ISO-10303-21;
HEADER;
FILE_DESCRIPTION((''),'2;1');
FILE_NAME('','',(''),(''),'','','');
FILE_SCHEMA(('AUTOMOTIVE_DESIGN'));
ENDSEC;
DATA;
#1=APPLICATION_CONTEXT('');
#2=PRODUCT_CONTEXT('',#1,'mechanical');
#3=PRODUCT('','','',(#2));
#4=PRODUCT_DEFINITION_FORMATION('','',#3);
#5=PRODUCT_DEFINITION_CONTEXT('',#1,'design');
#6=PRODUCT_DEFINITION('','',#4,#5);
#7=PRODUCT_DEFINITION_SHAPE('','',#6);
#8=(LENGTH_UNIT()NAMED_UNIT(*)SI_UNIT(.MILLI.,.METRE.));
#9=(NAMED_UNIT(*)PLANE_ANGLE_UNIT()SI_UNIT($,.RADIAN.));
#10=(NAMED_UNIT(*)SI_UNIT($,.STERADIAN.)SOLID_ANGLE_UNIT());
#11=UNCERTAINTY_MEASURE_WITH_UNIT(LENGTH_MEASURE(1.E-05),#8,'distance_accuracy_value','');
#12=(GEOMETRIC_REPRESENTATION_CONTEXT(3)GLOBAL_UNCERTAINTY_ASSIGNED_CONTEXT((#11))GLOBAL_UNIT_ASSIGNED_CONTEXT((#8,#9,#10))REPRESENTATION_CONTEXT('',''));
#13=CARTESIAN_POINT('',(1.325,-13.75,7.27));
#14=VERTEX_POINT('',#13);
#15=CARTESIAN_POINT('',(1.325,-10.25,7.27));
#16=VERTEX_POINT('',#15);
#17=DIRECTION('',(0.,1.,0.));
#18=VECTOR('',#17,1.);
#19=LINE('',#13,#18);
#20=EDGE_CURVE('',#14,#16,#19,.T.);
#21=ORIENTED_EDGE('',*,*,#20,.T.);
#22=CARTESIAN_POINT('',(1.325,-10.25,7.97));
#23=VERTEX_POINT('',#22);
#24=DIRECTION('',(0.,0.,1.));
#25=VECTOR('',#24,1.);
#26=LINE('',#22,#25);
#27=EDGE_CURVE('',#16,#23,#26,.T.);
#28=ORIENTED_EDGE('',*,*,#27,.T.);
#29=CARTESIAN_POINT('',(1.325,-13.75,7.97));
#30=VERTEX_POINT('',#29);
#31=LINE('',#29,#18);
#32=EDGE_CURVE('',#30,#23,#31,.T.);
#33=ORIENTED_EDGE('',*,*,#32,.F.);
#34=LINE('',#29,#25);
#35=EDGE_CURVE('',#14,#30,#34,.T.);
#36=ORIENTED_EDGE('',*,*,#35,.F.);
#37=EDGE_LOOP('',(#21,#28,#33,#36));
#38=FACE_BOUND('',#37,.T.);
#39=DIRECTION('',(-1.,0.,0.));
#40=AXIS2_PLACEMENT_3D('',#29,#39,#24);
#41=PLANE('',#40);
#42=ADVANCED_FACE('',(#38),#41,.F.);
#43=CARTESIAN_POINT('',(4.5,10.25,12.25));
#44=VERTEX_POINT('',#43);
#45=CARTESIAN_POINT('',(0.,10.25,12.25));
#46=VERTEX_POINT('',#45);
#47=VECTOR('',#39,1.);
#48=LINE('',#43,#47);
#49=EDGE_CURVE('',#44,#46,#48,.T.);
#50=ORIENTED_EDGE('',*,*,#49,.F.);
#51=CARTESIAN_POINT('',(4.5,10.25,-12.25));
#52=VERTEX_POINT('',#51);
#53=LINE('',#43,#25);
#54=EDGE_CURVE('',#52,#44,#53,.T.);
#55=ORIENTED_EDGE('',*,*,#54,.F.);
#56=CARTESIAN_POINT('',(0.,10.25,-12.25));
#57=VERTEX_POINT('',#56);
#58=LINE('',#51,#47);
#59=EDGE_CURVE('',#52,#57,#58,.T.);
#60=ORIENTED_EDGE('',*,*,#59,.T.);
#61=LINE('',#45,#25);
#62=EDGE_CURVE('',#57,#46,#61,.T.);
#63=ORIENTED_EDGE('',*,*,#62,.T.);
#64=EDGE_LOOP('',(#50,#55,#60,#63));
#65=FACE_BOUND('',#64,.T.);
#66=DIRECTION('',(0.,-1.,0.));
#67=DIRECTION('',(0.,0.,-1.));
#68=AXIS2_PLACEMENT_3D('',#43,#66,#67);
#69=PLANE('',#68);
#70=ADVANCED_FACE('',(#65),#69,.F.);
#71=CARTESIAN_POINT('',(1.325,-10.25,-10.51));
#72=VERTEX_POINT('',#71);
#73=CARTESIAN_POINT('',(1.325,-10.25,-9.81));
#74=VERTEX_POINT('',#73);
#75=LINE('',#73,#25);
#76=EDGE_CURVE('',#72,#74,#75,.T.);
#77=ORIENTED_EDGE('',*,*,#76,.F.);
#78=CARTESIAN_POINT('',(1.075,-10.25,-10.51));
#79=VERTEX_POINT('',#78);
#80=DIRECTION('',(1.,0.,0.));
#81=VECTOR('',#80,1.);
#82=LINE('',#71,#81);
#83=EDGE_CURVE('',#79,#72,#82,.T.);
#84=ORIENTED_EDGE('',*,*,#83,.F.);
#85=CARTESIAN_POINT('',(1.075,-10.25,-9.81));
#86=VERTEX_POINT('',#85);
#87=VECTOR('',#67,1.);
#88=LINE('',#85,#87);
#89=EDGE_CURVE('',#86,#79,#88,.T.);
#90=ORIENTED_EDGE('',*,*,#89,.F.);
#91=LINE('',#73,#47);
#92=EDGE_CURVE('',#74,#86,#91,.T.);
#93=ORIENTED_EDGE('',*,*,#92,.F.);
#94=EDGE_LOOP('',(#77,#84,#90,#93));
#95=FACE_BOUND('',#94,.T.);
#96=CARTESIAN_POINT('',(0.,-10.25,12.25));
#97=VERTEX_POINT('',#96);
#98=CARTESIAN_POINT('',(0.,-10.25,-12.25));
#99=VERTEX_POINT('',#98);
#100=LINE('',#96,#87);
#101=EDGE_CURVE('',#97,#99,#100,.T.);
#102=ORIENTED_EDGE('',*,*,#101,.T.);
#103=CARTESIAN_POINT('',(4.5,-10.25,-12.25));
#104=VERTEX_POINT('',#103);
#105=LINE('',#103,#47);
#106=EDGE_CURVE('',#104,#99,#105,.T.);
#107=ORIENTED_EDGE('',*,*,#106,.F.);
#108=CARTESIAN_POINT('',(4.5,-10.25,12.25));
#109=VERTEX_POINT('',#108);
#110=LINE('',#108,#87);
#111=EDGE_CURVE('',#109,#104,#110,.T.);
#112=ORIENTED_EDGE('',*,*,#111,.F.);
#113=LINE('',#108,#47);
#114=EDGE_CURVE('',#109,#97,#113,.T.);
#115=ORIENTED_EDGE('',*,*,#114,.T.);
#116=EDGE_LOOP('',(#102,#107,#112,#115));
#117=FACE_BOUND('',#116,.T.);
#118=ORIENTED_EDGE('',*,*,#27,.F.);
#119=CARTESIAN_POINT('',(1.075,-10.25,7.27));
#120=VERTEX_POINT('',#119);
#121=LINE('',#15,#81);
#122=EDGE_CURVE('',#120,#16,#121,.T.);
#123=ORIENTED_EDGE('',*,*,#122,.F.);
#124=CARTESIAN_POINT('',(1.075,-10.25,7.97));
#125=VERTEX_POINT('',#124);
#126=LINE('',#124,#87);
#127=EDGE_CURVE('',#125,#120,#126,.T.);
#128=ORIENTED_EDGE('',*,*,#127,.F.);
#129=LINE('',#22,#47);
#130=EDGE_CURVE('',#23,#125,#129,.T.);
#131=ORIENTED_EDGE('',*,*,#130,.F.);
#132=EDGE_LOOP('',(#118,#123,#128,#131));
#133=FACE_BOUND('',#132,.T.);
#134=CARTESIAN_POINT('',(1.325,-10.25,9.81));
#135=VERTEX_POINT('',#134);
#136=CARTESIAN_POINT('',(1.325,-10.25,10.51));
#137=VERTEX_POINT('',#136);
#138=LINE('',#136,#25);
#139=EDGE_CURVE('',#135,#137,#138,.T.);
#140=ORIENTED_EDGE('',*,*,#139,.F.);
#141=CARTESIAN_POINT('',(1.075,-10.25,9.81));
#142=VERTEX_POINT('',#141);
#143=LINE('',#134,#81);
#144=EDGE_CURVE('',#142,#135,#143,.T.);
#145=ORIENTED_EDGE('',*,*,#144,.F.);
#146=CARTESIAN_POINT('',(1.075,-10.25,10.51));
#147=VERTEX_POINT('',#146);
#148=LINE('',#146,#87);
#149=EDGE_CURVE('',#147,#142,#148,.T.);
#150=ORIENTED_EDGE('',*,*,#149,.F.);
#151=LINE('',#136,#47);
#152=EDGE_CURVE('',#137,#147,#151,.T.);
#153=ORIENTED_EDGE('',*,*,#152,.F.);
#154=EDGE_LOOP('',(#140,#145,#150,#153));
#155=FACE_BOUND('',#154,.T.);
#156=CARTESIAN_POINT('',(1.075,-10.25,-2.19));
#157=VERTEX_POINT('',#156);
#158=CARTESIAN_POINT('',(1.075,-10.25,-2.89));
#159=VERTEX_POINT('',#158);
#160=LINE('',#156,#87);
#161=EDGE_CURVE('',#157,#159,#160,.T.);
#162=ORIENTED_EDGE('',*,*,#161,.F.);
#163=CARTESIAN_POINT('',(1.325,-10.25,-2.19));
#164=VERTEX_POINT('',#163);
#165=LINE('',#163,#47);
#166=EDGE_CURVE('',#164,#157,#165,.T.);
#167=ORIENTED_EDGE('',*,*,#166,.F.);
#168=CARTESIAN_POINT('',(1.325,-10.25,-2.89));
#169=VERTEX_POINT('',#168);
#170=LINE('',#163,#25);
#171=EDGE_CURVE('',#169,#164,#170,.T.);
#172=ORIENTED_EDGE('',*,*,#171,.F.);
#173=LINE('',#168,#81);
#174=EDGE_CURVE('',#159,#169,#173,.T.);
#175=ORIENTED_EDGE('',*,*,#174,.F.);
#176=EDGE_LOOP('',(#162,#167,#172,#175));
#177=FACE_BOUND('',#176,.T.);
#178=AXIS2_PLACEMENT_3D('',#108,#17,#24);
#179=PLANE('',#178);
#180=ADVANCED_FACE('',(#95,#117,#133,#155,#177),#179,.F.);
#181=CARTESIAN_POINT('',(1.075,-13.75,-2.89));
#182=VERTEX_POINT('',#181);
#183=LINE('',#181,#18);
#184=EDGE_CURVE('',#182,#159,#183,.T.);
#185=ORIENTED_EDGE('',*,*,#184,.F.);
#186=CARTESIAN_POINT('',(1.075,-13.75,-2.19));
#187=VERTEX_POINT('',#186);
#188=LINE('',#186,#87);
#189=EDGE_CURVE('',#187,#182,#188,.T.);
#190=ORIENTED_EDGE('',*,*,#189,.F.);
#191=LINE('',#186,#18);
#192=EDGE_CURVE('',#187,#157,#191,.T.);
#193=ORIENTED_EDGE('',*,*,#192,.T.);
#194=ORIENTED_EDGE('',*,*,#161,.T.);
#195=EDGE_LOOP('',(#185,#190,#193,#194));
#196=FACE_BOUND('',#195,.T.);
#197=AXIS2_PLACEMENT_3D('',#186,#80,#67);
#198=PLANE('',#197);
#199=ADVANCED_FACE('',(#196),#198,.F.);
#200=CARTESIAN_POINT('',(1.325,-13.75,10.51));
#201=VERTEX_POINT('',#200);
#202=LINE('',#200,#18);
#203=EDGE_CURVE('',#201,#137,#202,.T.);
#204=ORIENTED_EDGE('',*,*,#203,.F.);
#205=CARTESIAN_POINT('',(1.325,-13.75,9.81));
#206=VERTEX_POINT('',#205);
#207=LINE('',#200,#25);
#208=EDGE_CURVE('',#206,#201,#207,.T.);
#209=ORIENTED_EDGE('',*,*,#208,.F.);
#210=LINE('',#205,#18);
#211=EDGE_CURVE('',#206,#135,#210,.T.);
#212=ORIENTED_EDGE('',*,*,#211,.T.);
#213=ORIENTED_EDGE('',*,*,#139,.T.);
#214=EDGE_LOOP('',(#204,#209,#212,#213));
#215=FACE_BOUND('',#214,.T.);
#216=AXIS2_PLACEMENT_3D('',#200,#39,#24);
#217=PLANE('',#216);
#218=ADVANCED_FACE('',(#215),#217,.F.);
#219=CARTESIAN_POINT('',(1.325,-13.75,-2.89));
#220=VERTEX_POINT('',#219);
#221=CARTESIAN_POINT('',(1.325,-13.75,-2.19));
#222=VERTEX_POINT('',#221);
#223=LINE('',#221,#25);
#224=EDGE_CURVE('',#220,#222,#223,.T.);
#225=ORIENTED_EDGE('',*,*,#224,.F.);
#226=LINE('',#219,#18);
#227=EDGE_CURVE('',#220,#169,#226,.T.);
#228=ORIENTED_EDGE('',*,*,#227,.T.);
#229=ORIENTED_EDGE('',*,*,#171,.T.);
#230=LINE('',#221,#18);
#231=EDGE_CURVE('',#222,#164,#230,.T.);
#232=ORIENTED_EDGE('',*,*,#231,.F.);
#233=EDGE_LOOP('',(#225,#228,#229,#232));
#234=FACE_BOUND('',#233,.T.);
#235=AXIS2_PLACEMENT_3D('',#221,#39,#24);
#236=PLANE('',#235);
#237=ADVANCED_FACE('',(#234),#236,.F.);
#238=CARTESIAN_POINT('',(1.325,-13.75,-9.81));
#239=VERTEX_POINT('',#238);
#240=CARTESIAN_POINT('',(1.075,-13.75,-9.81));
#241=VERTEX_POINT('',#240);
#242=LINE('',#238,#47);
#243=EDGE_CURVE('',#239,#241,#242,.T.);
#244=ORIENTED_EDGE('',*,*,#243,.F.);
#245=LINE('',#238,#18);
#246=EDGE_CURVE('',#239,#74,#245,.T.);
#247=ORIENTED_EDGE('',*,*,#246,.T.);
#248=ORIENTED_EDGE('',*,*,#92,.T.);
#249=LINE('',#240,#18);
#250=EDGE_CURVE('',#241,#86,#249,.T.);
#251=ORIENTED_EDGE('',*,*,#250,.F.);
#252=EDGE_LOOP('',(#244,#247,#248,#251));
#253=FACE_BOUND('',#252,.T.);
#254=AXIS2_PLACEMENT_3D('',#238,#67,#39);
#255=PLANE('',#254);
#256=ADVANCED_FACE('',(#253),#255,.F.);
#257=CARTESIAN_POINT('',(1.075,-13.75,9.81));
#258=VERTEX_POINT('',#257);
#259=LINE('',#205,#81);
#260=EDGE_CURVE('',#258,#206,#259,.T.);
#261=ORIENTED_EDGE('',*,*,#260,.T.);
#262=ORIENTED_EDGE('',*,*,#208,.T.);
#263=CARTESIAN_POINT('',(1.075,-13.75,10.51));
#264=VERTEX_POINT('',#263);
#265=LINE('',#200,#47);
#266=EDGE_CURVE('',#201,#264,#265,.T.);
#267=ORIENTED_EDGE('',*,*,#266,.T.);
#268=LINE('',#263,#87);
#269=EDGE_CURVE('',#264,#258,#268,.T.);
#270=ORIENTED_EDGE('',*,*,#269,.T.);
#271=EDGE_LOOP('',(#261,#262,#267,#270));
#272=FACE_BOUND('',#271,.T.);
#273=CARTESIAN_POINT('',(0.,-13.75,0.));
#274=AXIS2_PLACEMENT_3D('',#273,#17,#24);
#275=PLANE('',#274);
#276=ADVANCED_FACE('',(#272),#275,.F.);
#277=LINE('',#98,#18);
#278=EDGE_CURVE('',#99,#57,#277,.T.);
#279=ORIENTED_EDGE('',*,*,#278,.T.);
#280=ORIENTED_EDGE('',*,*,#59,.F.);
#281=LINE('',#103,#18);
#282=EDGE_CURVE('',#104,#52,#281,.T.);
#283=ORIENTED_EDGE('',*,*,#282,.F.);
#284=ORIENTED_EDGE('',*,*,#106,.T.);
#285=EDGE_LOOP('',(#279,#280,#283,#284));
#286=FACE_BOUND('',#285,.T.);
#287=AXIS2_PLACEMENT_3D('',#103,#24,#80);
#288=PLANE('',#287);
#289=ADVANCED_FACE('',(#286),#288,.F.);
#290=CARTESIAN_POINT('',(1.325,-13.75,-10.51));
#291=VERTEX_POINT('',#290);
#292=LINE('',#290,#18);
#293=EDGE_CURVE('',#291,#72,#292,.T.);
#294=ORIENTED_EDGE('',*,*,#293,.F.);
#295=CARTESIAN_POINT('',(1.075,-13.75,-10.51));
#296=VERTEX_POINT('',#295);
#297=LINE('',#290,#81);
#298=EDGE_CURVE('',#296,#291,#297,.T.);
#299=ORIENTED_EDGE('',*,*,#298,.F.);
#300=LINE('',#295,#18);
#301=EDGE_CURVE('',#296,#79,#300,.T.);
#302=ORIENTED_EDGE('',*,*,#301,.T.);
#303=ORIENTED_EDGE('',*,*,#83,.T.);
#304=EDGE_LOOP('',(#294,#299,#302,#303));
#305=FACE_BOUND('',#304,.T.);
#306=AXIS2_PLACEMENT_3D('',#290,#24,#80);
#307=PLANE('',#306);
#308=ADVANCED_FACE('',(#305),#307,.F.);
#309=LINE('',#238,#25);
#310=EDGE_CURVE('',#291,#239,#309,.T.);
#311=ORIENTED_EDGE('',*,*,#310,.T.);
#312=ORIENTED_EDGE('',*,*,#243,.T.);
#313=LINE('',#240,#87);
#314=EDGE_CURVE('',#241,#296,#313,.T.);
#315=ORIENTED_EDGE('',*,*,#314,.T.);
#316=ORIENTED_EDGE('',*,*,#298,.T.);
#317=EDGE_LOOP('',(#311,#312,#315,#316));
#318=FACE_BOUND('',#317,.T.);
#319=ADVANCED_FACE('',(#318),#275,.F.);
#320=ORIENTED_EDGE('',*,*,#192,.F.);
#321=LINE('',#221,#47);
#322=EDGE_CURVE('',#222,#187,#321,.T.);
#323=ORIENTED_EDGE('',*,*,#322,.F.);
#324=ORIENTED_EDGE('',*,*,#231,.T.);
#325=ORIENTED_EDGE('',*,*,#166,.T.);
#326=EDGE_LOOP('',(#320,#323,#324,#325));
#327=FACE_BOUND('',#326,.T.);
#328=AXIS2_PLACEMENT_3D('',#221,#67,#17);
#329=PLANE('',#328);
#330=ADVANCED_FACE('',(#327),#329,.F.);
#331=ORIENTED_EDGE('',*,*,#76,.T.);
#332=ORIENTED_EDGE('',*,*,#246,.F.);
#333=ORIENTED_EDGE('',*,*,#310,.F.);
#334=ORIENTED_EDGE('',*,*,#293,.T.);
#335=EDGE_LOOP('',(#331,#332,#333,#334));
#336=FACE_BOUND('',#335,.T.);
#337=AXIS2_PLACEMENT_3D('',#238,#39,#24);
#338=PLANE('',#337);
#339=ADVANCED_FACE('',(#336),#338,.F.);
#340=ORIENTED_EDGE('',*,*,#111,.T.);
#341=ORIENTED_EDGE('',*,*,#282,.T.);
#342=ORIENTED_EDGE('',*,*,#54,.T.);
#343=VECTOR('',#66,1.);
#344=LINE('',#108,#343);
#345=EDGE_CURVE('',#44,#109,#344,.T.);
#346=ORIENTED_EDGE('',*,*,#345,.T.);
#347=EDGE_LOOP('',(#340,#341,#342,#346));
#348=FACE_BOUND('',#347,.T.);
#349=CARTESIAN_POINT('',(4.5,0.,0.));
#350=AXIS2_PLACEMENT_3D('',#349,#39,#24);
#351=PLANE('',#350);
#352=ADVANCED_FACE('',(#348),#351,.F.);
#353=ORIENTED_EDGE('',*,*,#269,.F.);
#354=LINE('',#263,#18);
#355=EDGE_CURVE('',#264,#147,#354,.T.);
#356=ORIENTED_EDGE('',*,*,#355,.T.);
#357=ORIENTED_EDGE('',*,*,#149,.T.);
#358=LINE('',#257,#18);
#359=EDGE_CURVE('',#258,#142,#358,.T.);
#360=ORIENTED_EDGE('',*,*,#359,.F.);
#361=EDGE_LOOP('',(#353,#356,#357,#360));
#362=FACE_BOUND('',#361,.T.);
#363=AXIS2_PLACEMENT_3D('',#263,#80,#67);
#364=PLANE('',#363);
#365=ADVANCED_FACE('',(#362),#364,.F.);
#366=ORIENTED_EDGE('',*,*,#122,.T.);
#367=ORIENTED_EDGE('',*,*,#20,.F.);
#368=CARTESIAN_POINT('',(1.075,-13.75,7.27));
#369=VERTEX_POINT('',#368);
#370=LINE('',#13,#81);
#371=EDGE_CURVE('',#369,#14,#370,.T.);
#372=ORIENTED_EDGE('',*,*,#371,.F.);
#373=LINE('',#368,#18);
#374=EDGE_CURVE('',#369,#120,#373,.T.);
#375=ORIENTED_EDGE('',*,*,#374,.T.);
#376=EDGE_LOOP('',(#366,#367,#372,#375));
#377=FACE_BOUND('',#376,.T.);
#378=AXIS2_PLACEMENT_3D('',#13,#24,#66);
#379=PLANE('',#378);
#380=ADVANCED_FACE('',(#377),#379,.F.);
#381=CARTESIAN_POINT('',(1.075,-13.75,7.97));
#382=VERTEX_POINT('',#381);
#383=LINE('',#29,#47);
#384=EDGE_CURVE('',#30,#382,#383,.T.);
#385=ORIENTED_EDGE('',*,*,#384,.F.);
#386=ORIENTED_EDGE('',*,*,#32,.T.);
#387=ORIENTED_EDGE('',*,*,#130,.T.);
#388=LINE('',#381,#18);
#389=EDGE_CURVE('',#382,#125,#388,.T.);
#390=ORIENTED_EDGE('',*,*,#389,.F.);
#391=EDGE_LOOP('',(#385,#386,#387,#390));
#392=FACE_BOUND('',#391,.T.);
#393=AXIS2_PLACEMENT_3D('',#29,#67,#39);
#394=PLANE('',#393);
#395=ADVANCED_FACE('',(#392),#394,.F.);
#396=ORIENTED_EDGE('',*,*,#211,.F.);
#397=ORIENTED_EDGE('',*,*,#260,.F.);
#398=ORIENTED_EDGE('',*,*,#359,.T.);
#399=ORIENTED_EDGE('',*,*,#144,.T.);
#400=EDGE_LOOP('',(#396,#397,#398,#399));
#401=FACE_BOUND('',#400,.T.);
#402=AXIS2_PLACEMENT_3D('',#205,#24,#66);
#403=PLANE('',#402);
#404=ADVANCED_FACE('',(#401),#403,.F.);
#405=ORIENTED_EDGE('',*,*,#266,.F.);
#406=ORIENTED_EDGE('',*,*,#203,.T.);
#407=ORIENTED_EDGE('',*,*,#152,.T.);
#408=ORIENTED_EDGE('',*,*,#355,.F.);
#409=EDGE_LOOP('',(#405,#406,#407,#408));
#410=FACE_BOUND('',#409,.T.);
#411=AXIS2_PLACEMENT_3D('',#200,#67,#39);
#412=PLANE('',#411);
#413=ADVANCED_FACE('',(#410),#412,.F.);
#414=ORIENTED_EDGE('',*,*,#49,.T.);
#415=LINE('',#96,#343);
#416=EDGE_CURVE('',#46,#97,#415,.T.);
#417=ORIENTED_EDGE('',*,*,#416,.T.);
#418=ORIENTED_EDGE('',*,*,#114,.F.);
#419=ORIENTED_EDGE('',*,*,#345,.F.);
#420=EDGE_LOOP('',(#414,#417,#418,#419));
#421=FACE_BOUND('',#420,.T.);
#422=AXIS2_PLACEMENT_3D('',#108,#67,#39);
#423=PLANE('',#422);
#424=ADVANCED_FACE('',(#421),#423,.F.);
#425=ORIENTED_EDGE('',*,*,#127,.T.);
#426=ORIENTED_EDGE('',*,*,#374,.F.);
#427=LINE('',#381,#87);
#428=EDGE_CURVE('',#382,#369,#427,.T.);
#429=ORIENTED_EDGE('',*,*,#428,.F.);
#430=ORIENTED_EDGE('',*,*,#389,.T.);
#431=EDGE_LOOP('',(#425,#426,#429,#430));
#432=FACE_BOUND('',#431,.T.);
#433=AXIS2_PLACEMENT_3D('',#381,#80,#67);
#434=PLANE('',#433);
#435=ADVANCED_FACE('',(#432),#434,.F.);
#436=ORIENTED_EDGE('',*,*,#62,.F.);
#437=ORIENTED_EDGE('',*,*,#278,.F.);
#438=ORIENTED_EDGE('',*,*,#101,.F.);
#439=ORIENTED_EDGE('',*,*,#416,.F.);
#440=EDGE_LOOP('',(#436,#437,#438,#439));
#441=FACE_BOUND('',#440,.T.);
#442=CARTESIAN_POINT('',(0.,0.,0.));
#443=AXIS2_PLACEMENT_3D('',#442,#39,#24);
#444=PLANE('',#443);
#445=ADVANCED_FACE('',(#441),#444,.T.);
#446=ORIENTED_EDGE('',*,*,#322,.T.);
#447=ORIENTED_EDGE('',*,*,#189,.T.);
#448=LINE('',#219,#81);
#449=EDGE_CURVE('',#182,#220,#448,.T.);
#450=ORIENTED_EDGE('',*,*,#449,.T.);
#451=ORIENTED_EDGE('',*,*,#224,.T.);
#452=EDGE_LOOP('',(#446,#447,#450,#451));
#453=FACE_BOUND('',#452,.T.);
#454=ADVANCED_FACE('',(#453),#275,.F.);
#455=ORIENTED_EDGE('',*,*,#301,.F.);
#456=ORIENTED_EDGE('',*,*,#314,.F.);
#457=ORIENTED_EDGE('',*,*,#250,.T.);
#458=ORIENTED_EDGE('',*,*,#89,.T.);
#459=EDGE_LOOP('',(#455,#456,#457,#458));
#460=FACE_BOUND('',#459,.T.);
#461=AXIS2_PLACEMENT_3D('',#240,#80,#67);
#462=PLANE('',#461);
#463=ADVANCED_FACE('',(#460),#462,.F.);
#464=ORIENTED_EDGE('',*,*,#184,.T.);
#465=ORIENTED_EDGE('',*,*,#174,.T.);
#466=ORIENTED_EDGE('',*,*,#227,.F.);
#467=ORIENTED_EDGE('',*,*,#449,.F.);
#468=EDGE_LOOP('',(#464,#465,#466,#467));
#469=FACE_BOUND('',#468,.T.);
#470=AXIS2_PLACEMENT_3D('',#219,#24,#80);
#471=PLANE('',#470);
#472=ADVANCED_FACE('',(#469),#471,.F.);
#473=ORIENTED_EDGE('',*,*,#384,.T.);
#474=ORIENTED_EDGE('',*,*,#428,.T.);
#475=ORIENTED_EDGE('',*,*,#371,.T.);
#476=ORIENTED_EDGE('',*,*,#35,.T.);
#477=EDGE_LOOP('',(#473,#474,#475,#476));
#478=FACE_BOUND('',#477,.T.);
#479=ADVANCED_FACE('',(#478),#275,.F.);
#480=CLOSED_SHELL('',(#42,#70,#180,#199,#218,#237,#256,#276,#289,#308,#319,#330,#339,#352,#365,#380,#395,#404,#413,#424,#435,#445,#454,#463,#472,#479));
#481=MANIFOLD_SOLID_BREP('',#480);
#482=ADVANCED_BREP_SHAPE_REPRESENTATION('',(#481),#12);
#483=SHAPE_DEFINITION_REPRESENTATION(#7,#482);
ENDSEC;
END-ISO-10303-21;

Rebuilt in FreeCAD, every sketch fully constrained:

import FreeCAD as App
import Part
import Sketcher
from FreeCAD import Vector


def add_polygon(sketch, points):
    """Adds a closed chain of lines whose ends are joined by coincident constraints."""
    first, n = sketch.GeometryCount, len(points)
    for a, b in zip(points, points[1:] + points[:1]):
        sketch.addGeometry(Part.LineSegment(App.Vector(*a, 0), App.Vector(*b, 0)), False)
    for i in range(n):
        sketch.addConstraint(Sketcher.Constraint("Coincident", first + i, 2, first + (i + 1) % n, 1))

doc = App.newDocument("Part")
body = doc.addObject("PartDesign::Body", "Body")

sketch1 = doc.addObject("Sketcher::SketchObject", "Sketch")
body.addObject(sketch1)
sketch1.AttachmentSupport = (doc.YZ_Plane, [""])
sketch1.MapMode = "FlatFace"
add_polygon(sketch1, [(10, 12), (-10, 12), (-10, -12), (10, -12)])
sketch1.addConstraint(Sketcher.Constraint("Horizontal", 0))
sketch1.addConstraint(Sketcher.Constraint("Vertical", 1))
sketch1.addConstraint(Sketcher.Constraint("Horizontal", 2))
sketch1.addConstraint(Sketcher.Constraint("Vertical", 3))
sketch1.addConstraint(Sketcher.Constraint("Symmetric", 0, 2, 2, 2, -1, 1))
sketch1.addConstraint(Sketcher.Constraint("DistanceX", 0, 2, 0, 1, 20.5))
sketch1.addConstraint(Sketcher.Constraint("DistanceY", 1, 2, 1, 1, 24.5))
pad1 = doc.addObject("PartDesign::Pad", "Pad")
body.addObject(pad1)
pad1.Profile = sketch1
pad1.Length = 4.5

sketch2 = doc.addObject("Sketcher::SketchObject", "Sketch001")
body.addObject(sketch2)
sketch2.AttachmentSupport = (doc.XZ_Plane, [""])
sketch2.MapMode = "FlatFace"
sketch2.AttachmentOffset = App.Placement(Vector(0, 0, 10.25), App.Rotation())
add_polygon(sketch2, [(1.07, 7.97), (1.07, 7.27), (1.32, 7.27), (1.32, 7.97)])
add_polygon(sketch2, [(1.07, 10.51), (1.07, 9.81), (1.32, 9.81), (1.32, 10.51)])
add_polygon(sketch2, [(1.07, -2.19), (1.07, -2.89), (1.32, -2.89), (1.32, -2.19)])
add_polygon(sketch2, [(1.07, -9.81), (1.07, -10.51), (1.32, -10.51), (1.32, -9.81)])
sketch2.addConstraint(Sketcher.Constraint("Vertical", 0))
sketch2.addConstraint(Sketcher.Constraint("Horizontal", 1))
sketch2.addConstraint(Sketcher.Constraint("Vertical", 2))
sketch2.addConstraint(Sketcher.Constraint("Horizontal", 3))
sketch2.addConstraint(Sketcher.Constraint("Vertical", 4))
sketch2.addConstraint(Sketcher.Constraint("Horizontal", 5))
sketch2.addConstraint(Sketcher.Constraint("Vertical", 6))
sketch2.addConstraint(Sketcher.Constraint("Horizontal", 7))
sketch2.addConstraint(Sketcher.Constraint("Vertical", 8))
sketch2.addConstraint(Sketcher.Constraint("Horizontal", 9))
sketch2.addConstraint(Sketcher.Constraint("Vertical", 10))
sketch2.addConstraint(Sketcher.Constraint("Horizontal", 11))
sketch2.addConstraint(Sketcher.Constraint("Vertical", 12))
sketch2.addConstraint(Sketcher.Constraint("Horizontal", 13))
sketch2.addConstraint(Sketcher.Constraint("Vertical", 14))
sketch2.addConstraint(Sketcher.Constraint("Horizontal", 15))
sketch2.addConstraint(Sketcher.Constraint("Symmetric", 7, 2, 12, 2, -1))
sketch2.addConstraint(Sketcher.Constraint("Symmetric", 5, 2, 14, 2, -1))
sketch2.addConstraint(Sketcher.Constraint("Vertical", 3, 2, 4, 2))
sketch2.addConstraint(Sketcher.Constraint("Vertical", 2, 2, 5, 2))
sketch2.addConstraint(Sketcher.Constraint("Vertical", 7, 2, 8, 2))
sketch2.addConstraint(Sketcher.Constraint("Vertical", 6, 2, 9, 2))
sketch2.addConstraint(Sketcher.Constraint("Equal", 2, 4))
sketch2.addConstraint(Sketcher.Constraint("Equal", 6, 8))
sketch2.addConstraint(Sketcher.Constraint("DistanceY", 0, 2, 0, 1, 0.7))
sketch2.addConstraint(Sketcher.Constraint("DistanceX", 1, 1, 1, 2, 0.25))
sketch2.addConstraint(Sketcher.Constraint("DistanceY", 8, 2, 4, 2, 12.7))
sketch2.addConstraint(Sketcher.Constraint("DistanceY", -1, 1, 0, 2, 7.27))
sketch2.addConstraint(Sketcher.Constraint("DistanceY", -1, 1, 4, 2, 9.81))
sketch2.addConstraint(Sketcher.Constraint("DistanceX", -1, 1, 0, 2, 1.075))
pad2 = doc.addObject("PartDesign::Pad", "Pad001")
body.addObject(pad2)
pad2.Profile = sketch2
pad2.Length = 3.5

doc.recompute()
